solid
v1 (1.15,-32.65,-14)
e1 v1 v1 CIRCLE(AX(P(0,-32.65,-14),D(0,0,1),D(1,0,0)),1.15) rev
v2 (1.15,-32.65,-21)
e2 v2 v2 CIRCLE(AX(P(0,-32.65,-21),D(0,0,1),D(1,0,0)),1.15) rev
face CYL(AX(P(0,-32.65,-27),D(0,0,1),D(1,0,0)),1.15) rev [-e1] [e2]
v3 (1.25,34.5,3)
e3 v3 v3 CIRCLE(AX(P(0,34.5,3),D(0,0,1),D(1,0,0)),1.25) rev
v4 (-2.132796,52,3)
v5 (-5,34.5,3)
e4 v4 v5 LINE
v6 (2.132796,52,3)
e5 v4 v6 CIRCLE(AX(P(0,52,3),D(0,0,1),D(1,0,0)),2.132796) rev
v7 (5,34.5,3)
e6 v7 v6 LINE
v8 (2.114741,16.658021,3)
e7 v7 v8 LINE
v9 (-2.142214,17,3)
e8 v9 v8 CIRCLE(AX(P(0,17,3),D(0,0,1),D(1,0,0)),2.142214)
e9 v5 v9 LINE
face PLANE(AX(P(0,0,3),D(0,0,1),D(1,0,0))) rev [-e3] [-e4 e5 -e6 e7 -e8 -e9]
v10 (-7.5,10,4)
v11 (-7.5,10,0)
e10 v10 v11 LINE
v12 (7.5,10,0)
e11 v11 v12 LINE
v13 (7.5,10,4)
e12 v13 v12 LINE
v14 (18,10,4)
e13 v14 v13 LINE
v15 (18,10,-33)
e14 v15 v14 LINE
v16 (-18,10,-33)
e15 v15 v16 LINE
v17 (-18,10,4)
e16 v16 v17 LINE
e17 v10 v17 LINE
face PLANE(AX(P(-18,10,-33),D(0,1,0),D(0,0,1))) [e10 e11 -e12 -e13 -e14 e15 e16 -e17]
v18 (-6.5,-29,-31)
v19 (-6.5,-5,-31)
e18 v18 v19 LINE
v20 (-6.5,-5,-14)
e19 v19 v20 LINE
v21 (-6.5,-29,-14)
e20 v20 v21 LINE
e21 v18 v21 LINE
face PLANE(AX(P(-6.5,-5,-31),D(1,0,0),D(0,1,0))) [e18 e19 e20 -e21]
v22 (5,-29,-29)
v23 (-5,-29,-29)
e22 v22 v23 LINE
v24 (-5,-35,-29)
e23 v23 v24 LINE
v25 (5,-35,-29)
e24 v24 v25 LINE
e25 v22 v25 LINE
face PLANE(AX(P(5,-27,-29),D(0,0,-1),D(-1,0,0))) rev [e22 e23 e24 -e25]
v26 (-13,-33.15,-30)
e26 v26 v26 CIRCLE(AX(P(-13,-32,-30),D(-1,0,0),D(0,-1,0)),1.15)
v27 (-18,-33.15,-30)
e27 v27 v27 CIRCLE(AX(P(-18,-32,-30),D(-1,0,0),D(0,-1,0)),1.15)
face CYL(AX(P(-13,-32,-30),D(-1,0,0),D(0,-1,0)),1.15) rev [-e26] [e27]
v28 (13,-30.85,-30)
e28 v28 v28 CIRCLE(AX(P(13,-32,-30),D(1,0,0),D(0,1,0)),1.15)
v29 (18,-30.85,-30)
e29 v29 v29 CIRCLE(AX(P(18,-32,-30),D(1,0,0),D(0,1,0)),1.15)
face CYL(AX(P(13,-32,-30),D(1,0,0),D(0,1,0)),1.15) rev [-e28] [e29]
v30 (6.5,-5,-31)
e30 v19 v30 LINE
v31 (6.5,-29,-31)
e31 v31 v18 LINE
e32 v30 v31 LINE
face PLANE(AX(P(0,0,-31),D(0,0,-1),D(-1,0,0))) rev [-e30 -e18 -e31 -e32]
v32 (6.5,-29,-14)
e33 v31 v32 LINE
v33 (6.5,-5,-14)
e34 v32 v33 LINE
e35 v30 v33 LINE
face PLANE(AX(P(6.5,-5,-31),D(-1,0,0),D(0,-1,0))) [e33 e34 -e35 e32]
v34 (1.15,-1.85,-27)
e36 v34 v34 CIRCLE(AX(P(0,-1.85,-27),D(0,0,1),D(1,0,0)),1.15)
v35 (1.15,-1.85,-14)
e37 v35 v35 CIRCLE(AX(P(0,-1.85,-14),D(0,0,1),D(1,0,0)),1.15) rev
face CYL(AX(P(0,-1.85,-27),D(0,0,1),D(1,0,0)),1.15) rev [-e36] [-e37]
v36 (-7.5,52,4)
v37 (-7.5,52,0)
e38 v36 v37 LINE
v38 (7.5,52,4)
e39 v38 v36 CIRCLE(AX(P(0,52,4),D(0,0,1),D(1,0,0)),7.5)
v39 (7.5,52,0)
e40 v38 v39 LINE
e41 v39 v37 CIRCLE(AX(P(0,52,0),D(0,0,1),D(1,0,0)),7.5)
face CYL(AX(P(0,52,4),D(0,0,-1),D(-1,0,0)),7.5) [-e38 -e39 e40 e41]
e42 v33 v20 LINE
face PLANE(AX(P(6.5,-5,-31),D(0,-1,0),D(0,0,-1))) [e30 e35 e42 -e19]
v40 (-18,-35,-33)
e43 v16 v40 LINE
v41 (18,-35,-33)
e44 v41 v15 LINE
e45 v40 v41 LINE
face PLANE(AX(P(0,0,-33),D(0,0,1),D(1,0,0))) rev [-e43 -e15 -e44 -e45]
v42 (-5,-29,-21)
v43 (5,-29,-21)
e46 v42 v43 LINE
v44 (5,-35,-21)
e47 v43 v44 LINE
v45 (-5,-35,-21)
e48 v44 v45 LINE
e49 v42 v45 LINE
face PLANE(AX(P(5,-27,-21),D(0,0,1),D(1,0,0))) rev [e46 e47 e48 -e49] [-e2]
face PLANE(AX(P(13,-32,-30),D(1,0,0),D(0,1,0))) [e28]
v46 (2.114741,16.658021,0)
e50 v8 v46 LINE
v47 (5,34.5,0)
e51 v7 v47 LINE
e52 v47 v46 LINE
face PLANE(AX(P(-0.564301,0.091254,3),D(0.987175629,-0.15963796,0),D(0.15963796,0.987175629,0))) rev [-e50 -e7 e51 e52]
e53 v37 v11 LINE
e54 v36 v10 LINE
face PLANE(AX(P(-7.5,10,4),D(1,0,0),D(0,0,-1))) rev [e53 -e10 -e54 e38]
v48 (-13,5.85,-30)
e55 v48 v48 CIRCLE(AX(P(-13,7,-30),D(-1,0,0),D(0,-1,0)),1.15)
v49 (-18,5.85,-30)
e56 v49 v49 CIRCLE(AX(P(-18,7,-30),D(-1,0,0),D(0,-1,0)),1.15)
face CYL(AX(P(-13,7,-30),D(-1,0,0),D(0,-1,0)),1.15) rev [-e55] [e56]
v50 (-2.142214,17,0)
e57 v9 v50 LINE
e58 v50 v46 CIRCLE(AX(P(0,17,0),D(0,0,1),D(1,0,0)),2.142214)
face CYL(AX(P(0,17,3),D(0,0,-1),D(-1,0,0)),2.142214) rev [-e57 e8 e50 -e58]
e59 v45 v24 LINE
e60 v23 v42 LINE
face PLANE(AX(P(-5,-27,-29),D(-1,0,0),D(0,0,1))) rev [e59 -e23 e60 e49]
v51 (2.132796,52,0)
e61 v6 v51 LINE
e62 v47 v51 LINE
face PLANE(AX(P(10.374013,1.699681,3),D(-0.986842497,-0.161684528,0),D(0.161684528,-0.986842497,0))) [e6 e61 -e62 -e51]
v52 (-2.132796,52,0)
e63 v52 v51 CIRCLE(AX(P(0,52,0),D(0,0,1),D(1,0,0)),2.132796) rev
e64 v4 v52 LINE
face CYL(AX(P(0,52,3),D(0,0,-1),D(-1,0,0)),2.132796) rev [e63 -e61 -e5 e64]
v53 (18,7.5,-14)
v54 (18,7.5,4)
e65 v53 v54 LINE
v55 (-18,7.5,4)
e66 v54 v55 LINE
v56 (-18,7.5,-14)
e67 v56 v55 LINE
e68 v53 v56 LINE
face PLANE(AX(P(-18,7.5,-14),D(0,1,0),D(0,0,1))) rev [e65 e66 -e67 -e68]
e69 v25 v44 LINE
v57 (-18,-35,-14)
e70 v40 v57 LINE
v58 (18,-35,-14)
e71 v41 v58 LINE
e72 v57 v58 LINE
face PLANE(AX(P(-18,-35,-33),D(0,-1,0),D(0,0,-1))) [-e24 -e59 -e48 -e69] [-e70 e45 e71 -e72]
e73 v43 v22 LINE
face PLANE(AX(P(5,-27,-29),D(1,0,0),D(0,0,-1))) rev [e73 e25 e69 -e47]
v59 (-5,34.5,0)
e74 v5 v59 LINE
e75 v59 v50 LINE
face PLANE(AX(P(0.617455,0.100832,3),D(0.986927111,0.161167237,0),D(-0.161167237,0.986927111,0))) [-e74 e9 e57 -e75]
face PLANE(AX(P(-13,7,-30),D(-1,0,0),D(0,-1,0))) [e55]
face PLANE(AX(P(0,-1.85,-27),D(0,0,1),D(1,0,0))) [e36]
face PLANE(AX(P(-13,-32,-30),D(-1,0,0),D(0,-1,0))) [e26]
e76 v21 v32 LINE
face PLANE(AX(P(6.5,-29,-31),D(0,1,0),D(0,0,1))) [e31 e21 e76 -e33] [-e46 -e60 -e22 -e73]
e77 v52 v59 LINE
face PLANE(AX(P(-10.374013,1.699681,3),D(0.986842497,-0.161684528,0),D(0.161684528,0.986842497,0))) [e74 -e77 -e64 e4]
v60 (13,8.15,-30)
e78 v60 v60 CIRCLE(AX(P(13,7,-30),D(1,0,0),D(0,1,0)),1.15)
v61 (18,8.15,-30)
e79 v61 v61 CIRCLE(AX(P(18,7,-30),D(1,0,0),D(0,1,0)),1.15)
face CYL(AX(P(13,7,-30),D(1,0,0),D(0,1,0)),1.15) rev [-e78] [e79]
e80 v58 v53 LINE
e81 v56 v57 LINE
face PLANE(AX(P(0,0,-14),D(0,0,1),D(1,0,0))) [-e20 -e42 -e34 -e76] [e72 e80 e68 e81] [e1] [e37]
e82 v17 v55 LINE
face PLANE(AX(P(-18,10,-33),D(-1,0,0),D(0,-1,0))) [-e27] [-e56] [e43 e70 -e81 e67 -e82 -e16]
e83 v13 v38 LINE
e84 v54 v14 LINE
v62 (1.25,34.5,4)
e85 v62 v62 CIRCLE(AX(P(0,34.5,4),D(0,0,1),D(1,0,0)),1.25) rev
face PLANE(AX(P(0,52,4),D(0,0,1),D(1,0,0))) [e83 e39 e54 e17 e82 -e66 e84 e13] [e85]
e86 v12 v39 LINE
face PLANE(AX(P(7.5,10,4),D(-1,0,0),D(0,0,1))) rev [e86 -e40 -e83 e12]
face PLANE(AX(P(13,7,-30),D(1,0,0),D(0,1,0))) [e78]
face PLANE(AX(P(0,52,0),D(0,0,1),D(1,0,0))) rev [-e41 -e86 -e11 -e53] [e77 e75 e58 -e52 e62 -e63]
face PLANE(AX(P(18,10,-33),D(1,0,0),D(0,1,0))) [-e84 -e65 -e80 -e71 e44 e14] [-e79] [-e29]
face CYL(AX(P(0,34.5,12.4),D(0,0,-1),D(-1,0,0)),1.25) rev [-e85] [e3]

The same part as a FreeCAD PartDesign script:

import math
import FreeCAD as App
import Part
import Sketcher

V = App.Vector


def add_polygon(sketch, points):
    """Adds a closed chain of lines whose ends are joined by coincident constraints."""
    first, n = sketch.GeometryCount, len(points)
    for a, b in zip(points, points[1:] + points[:1]):
        sketch.addGeometry(Part.LineSegment(App.Vector(*a, 0), App.Vector(*b, 0)), False)
    for i in range(n):
        sketch.addConstraint(Sketcher.Constraint("Coincident", first + i, 2, first + (i + 1) % n, 1))

doc = App.newDocument("Part")
params = doc.addObject("Spreadsheet::Sheet", "Params")
for row, (alias, value) in enumerate([
    ("sketch1_radius", "7.5 mm"),
    ("sketch1_height", "42 mm"),
    ("pad1_length", "4 mm"),
    ("pocket1_length", "3 mm"),
    ("sketch3_diameter", "2.5 mm"),
    ("pocket2_length", "12.4 mm"),
    ("sketch4_width", "36 mm"),
    ("sketch4_height", "45 mm"),
    ("pad2_length", "37 mm"),
    ("sketch5_width", "13 mm"),
    ("sketch5_height", "24 mm"),
    ("pocket3_length", "35 mm"),
    ("sketch6_diameter", "2.3 mm"),
    ("pocket4_length", "31 mm"),
    ("sketch7_width", "10 mm"),
    ("sketch7_height", "8 mm"),
    ("pocket5_length", "8 mm"),
    ("sketch8_width", "36 mm"),
    ("sketch8_height", "42.5 mm"),
    ("pocket6_length", "18 mm"),
    ("sketch9_diameter", "2.3 mm"),
    ("pocket7_length", "5 mm"),
    ("sketch10_diameter", "2.3 mm"),
    ("pocket8_length", "5 mm"),
], start=1):
    params.set(f"A{row}", alias)
    params.set(f"B{row}", "=" + value)
    params.setAlias(f"B{row}", alias)

body = doc.addObject("PartDesign::Body", "Body")

# Sketch on XY plane
sketch1 = body.newObject("Sketcher::SketchObject", "Sketch")
sketch1.AttachmentSupport = (doc.getObject("XY_Plane"), [""])
sketch1.MapMode = "FlatFace"
sketch1.addGeometry([
    Part.LineSegment(V(7.5, 10, 0), V(7.5, 52, 0)),
    Part.ArcOfCircle(Part.Circle(V(0, 52, 0), V(0, 0, 1), 7.5), math.radians(0), math.radians(180)),
    Part.LineSegment(V(-7.5, 52, 0), V(-7.5, 10, 0)),
    Part.LineSegment(V(-7.5, 10, 0), V(7.5, 10, 0)),
], False)
sketch1.addConstraint([
    Sketcher.Constraint("Tangent", 0, 2, 1, 1),
    Sketcher.Constraint("Tangent", 1, 2, 2, 1),
    Sketcher.Constraint("Coincident", 2, 2, 3, 1),
    Sketcher.Constraint("Coincident", 3, 2, 0, 1),
    Sketcher.Constraint("Vertical", 0),
    Sketcher.Constraint("Vertical", 2),
    Sketcher.Constraint("Horizontal", 3),
    Sketcher.Constraint("PointOnObject", 1, 3, -2),
    Sketcher.Constraint("Radius", 1, 7.5),
    Sketcher.Constraint("DistanceY", 0, 1, 0, 2, 42.0),
    Sketcher.Constraint("DistanceY", -1, 1, 1, 3, 52.0),
])
sketch1.setExpression("Constraints[8]", "Params.sketch1_radius")
sketch1.setExpression("Constraints[9]", "Params.sketch1_height")
pad1 = body.newObject("PartDesign::Pad", "Pad")
pad1.Profile = sketch1
pad1.setExpression("Length", "Params.pad1_length")

# Sketch on XY plane
sketch2 = body.newObject("Sketcher::SketchObject", "Sketch001")
sketch2.AttachmentSupport = (doc.getObject("XY_Plane"), [""])
sketch2.MapMode = "FlatFace"
sketch2.addGeometry([
    Part.ArcOfCircle(Part.Circle(V(0, 52, 0), V(0, 0, 1), 2.132796), math.radians(0), math.radians(180)),  # 0
    Part.LineSegment(V(-2.132796, 52, 0), V(-5, 34.5, 0)),  # 1
    Part.LineSegment(V(-5, 34.5, 0), V(-2.142214, 17, 0)),  # 2
    Part.ArcOfCircle(Part.Circle(V(0, 17, 0), V(0, 0, 1), 2.142214), math.radians(180), math.radians(350.814117)),  # 3
    Part.LineSegment(V(2.114741, 16.658021, 0), V(5, 34.5, 0)),  # 4
    Part.LineSegment(V(5, 34.5, 0), V(2.132796, 52, 0)),  # 5
], False)
sketch2.addConstraint([
    Sketcher.Constraint("Coincident", 0, 2, 1, 1),
    Sketcher.Constraint("Coincident", 1, 2, 2, 1),
    Sketcher.Constraint("Coincident", 2, 2, 3, 1),
    Sketcher.Constraint("Tangent", 3, 2, 4, 1),
    Sketcher.Constraint("Coincident", 4, 2, 5, 1),
    Sketcher.Constraint("Coincident", 5, 2, 0, 1),
    Sketcher.Constraint("Symmetric", 1, 2, 4, 2, -2),
    Sketcher.Constraint("Symmetric", 0, 2, 5, 2, -2),
    Sketcher.Constraint("PointOnObject", 3, 3, -2),
    Sketcher.Constraint("Horizontal", 3, 3, 2, 2),
    Sketcher.Constraint("DistanceY", -1, 1, 0, 3, 52.0),
    Sketcher.Constraint("DistanceY", -1, 1, 3, 3, 17.0),
    Sketcher.Constraint("DistanceY", -1, 1, 0, 2, 52.0),
    Sketcher.Constraint("DistanceX", 1, 2, -1, 1, 5.0),
    Sketcher.Constraint("DistanceY", -1, 1, 1, 2, 34.5),
    Sketcher.Constraint("Radius", 0, 2.132796),
    Sketcher.Constraint("Radius", 3, 2.142214),
])
pocket1 = body.newObject("PartDesign::Pocket", "Pocket")
pocket1.Profile = sketch2
pocket1.setExpression("Length", "Params.pocket1_length")
pocket1.Reversed = True

# Sketch on XY plane
sketch3 = body.newObject("Sketcher::SketchObject", "Sketch002")
sketch3.AttachmentSupport = (doc.getObject("XY_Plane"), [""])
sketch3.MapMode = "FlatFace"
sketch3.addGeometry(Part.Circle(V(0, 34.5, 0), V(0, 0, 1), 1.25), False)
sketch3.addConstraint([
    Sketcher.Constraint("PointOnObject", 0, 3, -2),
    Sketcher.Constraint("Diameter", 0, 2.5),
    Sketcher.Constraint("DistanceY", -1, 1, 0, 3, 34.5),
])
sketch3.setExpression("Constraints[1]", "Params.sketch3_diameter")
pocket2 = body.newObject("PartDesign::Pocket", "Pocket001")
pocket2.Profile = sketch3
pocket2.setExpression("Length", "Params.pocket2_length")
pocket2.Reversed = True

# Sketch on XY plane
sketch4 = body.newObject("Sketcher::SketchObject", "Sketch003")
sketch4.AttachmentSupport = (doc.getObject("XY_Plane"), [""])
sketch4.MapMode = "FlatFace"
sketch4.AttachmentOffset = App.Placement(V(0, 0, 4), App.Rotation())
add_polygon(sketch4, [(-18, 10), (-18, -35), (18, -35), (18, 10)])  # lines 0-3
sketch4.addConstraint([
    Sketcher.Constraint("Vertical", 0),
    Sketcher.Constraint("Horizontal", 1),
    Sketcher.Constraint("Vertical", 2),
    Sketcher.Constraint("Horizontal", 3),
    Sketcher.Constraint("DistanceX", 1, 1, 1, 2, 36.0),
    Sketcher.Constraint("DistanceY", 0, 2, 0, 1, 45.0),
    Sketcher.Constraint("DistanceX", 0, 2, -1, 1, 18.0),
    Sketcher.Constraint("DistanceY", 0, 2, -1, 1, 35.0),
])
sketch4.setExpression("Constraints[8]", "Params.sketch4_width")
sketch4.setExpression("Constraints[9]", "Params.sketch4_height")
pad2 = body.newObject("PartDesign::Pad", "Pad001")
pad2.Profile = sketch4
pad2.setExpression("Length", "Params.pad2_length")
pad2.Reversed = True

# Sketch on XY plane
sketch5 = body.newObject("Sketcher::SketchObject", "Sketch004")
sketch5.AttachmentSupport = (doc.getObject("XY_Plane"), [""])
sketch5.MapMode = "FlatFace"
sketch5.AttachmentOffset = App.Placement(V(0, 0, 4), App.Rotation())
add_polygon(sketch5, [(6.5, -5), (6.5, -29), (-6.5, -29), (-6.5, -5)])  # lines 0-3
sketch5.addConstraint([
    Sketcher.Constraint("Vertical", 0),
    Sketcher.Constraint("Horizontal", 1),
    Sketcher.Constraint("Vertical", 2),
    Sketcher.Constraint("Horizontal", 3),
    Sketcher.Constraint("DistanceX", 1, 2, 1, 1, 13.0),
    Sketcher.Constraint("DistanceY", 0, 2, 0, 1, 24.0),
    Sketcher.Constraint("DistanceY", 0, 2, -1, 1, 29.0),
    Sketcher.Constraint("DistanceX", -1, 1, 0, 2, 6.5),
])
sketch5.setExpression("Constraints[8]", "Params.sketch5_width")
sketch5.setExpression("Constraints[9]", "Params.sketch5_height")
pocket3 = body.newObject("PartDesign::Pocket", "Pocket002")
pocket3.Profile = sketch5
pocket3.setExpression("Length", "Params.pocket3_length")

# Sketch on XY plane
sketch6 = body.newObject("Sketcher::SketchObject", "Sketch005")
sketch6.AttachmentSupport = (doc.getObject("XY_Plane"), [""])
sketch6.MapMode = "FlatFace"
sketch6.AttachmentOffset = App.Placement(V(0, 0, 4), App.Rotation())
sketch6.addGeometry([
    Part.Circle(V(0, -1.85, 0), V(0, 0, 1), 1.15),
    Part.Circle(V(0, -32.65, 0), V(0, 0, 1), 1.15),
], False)
sketch6.addConstraint([
    Sketcher.Constraint("Equal", 0, 1),
    Sketcher.Constraint("PointOnObject", 0, 3, -2),
    Sketcher.Constraint("PointOnObject", 1, 3, -2),
    Sketcher.Constraint("Diameter", 0, 2.3),
    Sketcher.Constraint("DistanceY", 1, 3, 0, 3, 30.8),
    Sketcher.Constraint("DistanceY", 0, 3, -1, 1, 1.85),
])
sketch6.setExpression("Constraints[3]", "Params.sketch6_diameter")
pocket4 = body.newObject("PartDesign::Pocket", "Pocket003")
pocket4.Profile = sketch6
pocket4.setExpression("Length", "Params.pocket4_length")

# Sketch on XZ plane
sketch7 = body.newObject("Sketcher::SketchObject", "Sketch006")
sketch7.AttachmentSupport = (doc.getObject("XZ_Plane"), [""])
sketch7.MapMode = "FlatFace"
sketch7.AttachmentOffset = App.Placement(V(0, 0, 35), App.Rotation())
add_polygon(sketch7, [(5, -29), (5, -21), (-5, -21), (-5, -29)])  # lines 0-3
sketch7.addConstraint([
    Sketcher.Constraint("Vertical", 0),
    Sketcher.Constraint("Horizontal", 1),
    Sketcher.Constraint("Vertical", 2),
    Sketcher.Constraint("Horizontal", 3),
    Sketcher.Constraint("DistanceX", 1, 2, 1, 1, 10.0),
    Sketcher.Constraint("DistanceY", 0, 1, 0, 2, 8.0),
    Sketcher.Constraint("DistanceX", -1, 1, 0, 2, 5.0),
    Sketcher.Constraint("DistanceY", 0, 2, -1, 1, 21.0),
])
sketch7.setExpression("Constraints[8]", "Params.sketch7_width")
sketch7.setExpression("Constraints[9]", "Params.sketch7_height")
pocket5 = body.newObject("PartDesign::Pocket", "Pocket004")
pocket5.Profile = sketch7
pocket5.setExpression("Length", "Params.pocket5_length")

# Sketch on XY plane
sketch8 = body.newObject("Sketcher::SketchObject", "Sketch007")
sketch8.AttachmentSupport = (doc.getObject("XY_Plane"), [""])
sketch8.MapMode = "FlatFace"
sketch8.AttachmentOffset = App.Placement(V(0, 0, 4), App.Rotation())
add_polygon(sketch8, [(-18, 7.5), (-18, -35), (18, -35), (18, 7.5)])  # lines 0-3
sketch8.addConstraint([
    Sketcher.Constraint("Vertical", 0),
    Sketcher.Constraint("Horizontal", 1),
    Sketcher.Constraint("Vertical", 2),
    Sketcher.Constraint("Horizontal", 3),
    Sketcher.Constraint("DistanceX", 1, 1, 1, 2, 36.0),
    Sketcher.Constraint("DistanceY", 0, 2, 0, 1, 42.5),
    Sketcher.Constraint("DistanceX", 0, 2, -1, 1, 18.0),
    Sketcher.Constraint("DistanceY", 0, 2, -1, 1, 35.0),
])
sketch8.setExpression("Constraints[8]", "Params.sketch8_width")
sketch8.setExpression("Constraints[9]", "Params.sketch8_height")
pocket6 = body.newObject("PartDesign::Pocket", "Pocket005")
pocket6.Profile = sketch8
pocket6.setExpression("Length", "Params.pocket6_length")

# Sketch on YZ plane
sketch9 = body.newObject("Sketcher::SketchObject", "Sketch008")
sketch9.AttachmentSupport = (doc.getObject("YZ_Plane"), [""])
sketch9.MapMode = "FlatFace"
sketch9.AttachmentOffset = App.Placement(V(0, 0, -18), App.Rotation())
sketch9.addGeometry([
    Part.Circle(V(7, -30, 0), V(0, 0, 1), 1.15),
    Part.Circle(V(-32, -30, 0), V(0, 0, 1), 1.15),
], False)
sketch9.addConstraint([
    Sketcher.Constraint("Equal", 0, 1),
    Sketcher.Constraint("Horizontal", 0, 3, 1, 3),
    Sketcher.Constraint("Diameter", 0, 2.3),
    Sketcher.Constraint("DistanceX", -1, 1, 0, 3, 7.0),
    Sketcher.Constraint("DistanceY", 0, 3, -1, 1, 30.0),
    Sketcher.Constraint("DistanceX", 1, 3, -1, 1, 32.0),
])
sketch9.setExpression("Constraints[2]", "Params.sketch9_diameter")
pocket7 = body.newObject("PartDesign::Pocket", "Pocket006")
pocket7.Profile = sketch9
pocket7.setExpression("Length", "Params.pocket7_length")
pocket7.Reversed = True

# Sketch on YZ plane
sketch10 = body.newObject("Sketcher::SketchObject", "Sketch009")
sketch10.AttachmentSupport = (doc.getObject("YZ_Plane"), [""])
sketch10.MapMode = "FlatFace"
sketch10.AttachmentOffset = App.Placement(V(0, 0, 18), App.Rotation())
sketch10.addGeometry([
    Part.Circle(V(7, -30, 0), V(0, 0, 1), 1.15),
    Part.Circle(V(-32, -30, 0), V(0, 0, 1), 1.15),
], False)
sketch10.addConstraint([
    Sketcher.Constraint("Equal", 0, 1),
    Sketcher.Constraint("Horizontal", 0, 3, 1, 3),
    Sketcher.Constraint("Diameter", 0, 2.3),
    Sketcher.Constraint("DistanceX", -1, 1, 0, 3, 7.0),
    Sketcher.Constraint("DistanceY", 0, 3, -1, 1, 30.0),
    Sketcher.Constraint("DistanceX", 1, 3, -1, 1, 32.0),
])
sketch10.setExpression("Constraints[2]", "Params.sketch10_diameter")
pocket8 = body.newObject("PartDesign::Pocket", "Pocket007")
pocket8.Profile = sketch10
pocket8.setExpression("Length", "Params.pocket8_length")

doc.recompute()
